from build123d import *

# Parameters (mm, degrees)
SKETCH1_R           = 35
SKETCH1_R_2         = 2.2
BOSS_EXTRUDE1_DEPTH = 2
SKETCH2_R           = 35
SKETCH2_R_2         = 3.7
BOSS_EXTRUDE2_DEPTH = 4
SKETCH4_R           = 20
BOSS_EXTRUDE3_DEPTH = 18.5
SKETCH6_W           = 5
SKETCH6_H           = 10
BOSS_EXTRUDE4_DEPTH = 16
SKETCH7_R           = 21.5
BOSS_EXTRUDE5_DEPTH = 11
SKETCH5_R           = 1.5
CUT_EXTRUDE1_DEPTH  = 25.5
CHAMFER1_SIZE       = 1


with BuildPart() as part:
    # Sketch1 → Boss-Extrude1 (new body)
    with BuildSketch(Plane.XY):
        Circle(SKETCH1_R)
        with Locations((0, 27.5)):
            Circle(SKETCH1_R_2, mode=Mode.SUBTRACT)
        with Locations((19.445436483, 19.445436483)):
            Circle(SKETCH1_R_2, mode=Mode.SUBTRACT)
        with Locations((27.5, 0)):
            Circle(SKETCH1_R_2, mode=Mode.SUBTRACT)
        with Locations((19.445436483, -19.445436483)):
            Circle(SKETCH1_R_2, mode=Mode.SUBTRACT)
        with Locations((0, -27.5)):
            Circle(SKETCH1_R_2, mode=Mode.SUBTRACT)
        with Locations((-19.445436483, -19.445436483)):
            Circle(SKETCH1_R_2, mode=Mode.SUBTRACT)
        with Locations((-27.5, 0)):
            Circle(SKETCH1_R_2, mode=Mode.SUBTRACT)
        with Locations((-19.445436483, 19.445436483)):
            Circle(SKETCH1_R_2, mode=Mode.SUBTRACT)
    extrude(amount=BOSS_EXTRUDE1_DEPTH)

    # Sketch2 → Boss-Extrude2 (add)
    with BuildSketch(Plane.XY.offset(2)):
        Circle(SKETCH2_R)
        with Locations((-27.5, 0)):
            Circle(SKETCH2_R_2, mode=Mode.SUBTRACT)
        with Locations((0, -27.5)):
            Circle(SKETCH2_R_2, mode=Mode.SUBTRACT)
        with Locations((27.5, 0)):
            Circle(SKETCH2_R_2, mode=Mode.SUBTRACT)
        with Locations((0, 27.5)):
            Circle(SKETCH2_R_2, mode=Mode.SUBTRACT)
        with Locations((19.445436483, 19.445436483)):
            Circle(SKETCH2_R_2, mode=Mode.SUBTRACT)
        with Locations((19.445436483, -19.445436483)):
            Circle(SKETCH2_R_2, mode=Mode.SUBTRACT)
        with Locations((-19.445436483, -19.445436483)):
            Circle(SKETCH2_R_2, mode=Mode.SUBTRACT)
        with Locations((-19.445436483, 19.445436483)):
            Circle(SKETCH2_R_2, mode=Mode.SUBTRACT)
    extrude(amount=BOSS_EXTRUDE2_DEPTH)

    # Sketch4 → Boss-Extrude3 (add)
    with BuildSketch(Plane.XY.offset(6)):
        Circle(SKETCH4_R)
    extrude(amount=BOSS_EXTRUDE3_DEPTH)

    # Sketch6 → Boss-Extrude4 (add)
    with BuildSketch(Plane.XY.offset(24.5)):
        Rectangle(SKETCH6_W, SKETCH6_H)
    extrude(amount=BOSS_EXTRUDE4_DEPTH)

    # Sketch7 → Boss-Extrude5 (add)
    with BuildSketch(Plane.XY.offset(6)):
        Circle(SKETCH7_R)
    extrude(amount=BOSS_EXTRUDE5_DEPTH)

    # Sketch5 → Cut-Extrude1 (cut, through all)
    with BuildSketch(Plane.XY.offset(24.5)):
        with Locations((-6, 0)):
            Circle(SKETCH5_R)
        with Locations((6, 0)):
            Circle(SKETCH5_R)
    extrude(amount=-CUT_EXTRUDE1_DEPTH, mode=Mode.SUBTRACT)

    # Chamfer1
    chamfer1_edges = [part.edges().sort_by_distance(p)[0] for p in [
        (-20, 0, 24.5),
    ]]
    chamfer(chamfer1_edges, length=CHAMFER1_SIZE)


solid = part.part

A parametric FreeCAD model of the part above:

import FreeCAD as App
import Part
import Sketcher

V = App.Vector


def edges_at(feature, points):
    """Names of the edges that pass closest to the given points."""
    edges = feature.Shape.Edges
    near = lambda p: min(range(len(edges)), key=lambda i: edges[i].distToShape(Part.Vertex(*p))[0])
    return sorted({f"Edge{near(p) + 1}" for p in points})

doc = App.newDocument("Part")
body = doc.addObject("PartDesign::Body", "Body")

# Sketch on XY plane
sketch1 = body.newObject("Sketcher::SketchObject", "Sketch")
sketch1.AttachmentSupport = (doc.getObject("XY_Plane"), [""])
sketch1.MapMode = "FlatFace"
sketch1.addGeometry(Part.Circle(V(0, 0, 0), V(0, 0, 1), 35), False)
sketch1.addGeometry(Part.Circle(V(-19.4, -19.4, 0), V(0, 0, 1), 2.2), False)
sketch1.addGeometry(Part.Circle(V(0, -27.5, 0), V(0, 0, 1), 2.2), False)
sketch1.addGeometry(Part.Circle(V(19.4, -19.4, 0), V(0, 0, 1), 2.2), False)
sketch1.addGeometry(Part.Circle(V(-27.5, 0, 0), V(0, 0, 1), 2.2), False)
sketch1.addGeometry(Part.Circle(V(-19.4, 19.4, 0), V(0, 0, 1), 2.2), False)
sketch1.addGeometry(Part.Circle(V(27.5, 0, 0), V(0, 0, 1), 2.2), False)
sketch1.addGeometry(Part.Circle(V(0, 27.5, 0), V(0, 0, 1), 2.2), False)
sketch1.addGeometry(Part.Circle(V(19.4, 19.4, 0), V(0, 0, 1), 2.2), False)
sketch1.addConstraint(Sketcher.Constraint("Coincident", 0, 3, -1, 1))
sketch1.addConstraint(Sketcher.Constraint("Equal", 1, 2))
sketch1.addConstraint(Sketcher.Constraint("Equal", 2, 3))
sketch1.addConstraint(Sketcher.Constraint("Equal", 3, 4))
sketch1.addConstraint(Sketcher.Constraint("Equal", 4, 5))
sketch1.addConstraint(Sketcher.Constraint("Equal", 5, 6))
sketch1.addConstraint(Sketcher.Constraint("Equal", 6, 7))
sketch1.addConstraint(Sketcher.Constraint("Equal", 7, 8))
sketch1.addConstraint(Sketcher.Constraint("Symmetric", 3, 3, 5, 3, -1, 1))
sketch1.addConstraint(Sketcher.Constraint("Symmetric", 4, 3, 6, 3, -1, 1))
sketch1.addConstraint(Sketcher.Constraint("Symmetric", 2, 3, 7, 3, -1, 1))
sketch1.addConstraint(Sketcher.Constraint("Symmetric", 1, 3, 8, 3, -1, 1))
sketch1.addConstraint(Sketcher.Constraint("Symmetric", 1, 3, 3, 3, -2))
sketch1.addConstraint(Sketcher.Constraint("PointOnObject", 2, 3, -2))
sketch1.addConstraint(Sketcher.Constraint("PointOnObject", 4, 3, -1))
sketch1.addConstraint(Sketcher.Constraint("Diameter", 0, 70.0))
sketch1.addConstraint(Sketcher.Constraint("Diameter", 1, 4.4))
sketch1.addConstraint(Sketcher.Constraint("DistanceY", 2, 3, -1, 1, 27.5))
sketch1.addConstraint(Sketcher.Constraint("DistanceX", 4, 3, -1, 1, 27.5))
sketch1.addConstraint(Sketcher.Constraint("DistanceX", 1, 3, -1, 1, 19.445436))
sketch1.addConstraint(Sketcher.Constraint("DistanceY", 1, 3, -1, 1, 19.445436))
pad1 = body.newObject("PartDesign::Pad", "Pad")
pad1.Profile = sketch1
pad1.Length = 2

# Sketch on XY plane
sketch2 = body.newObject("Sketcher::SketchObject", "Sketch001")
sketch2.AttachmentSupport = (doc.getObject("XY_Plane"), [""])
sketch2.MapMode = "FlatFace"
sketch2.AttachmentOffset = App.Placement(V(0, 0, 2), App.Rotation())
sketch2.addGeometry(Part.Circle(V(0, 0, 0), V(0, 0, 1), 35), False)
sketch2.addGeometry(Part.Circle(V(-19.4, -19.4, 0), V(0, 0, 1), 3.7), False)
sketch2.addGeometry(Part.Circle(V(0, -27.5, 0), V(0, 0, 1), 3.7), False)
sketch2.addGeometry(Part.Circle(V(19.4, -19.4, 0), V(0, 0, 1), 3.7), False)
sketch2.addGeometry(Part.Circle(V(-27.5, 0, 0), V(0, 0, 1), 3.7), False)
sketch2.addGeometry(Part.Circle(V(-19.4, 19.4, 0), V(0, 0, 1), 3.7), False)
sketch2.addGeometry(Part.Circle(V(27.5, 0, 0), V(0, 0, 1), 3.7), False)
sketch2.addGeometry(Part.Circle(V(0, 27.5, 0), V(0, 0, 1), 3.7), False)
sketch2.addGeometry(Part.Circle(V(19.4, 19.4, 0), V(0, 0, 1), 3.7), False)
sketch2.addConstraint(Sketcher.Constraint("Coincident", 0, 3, -1, 1))
sketch2.addConstraint(Sketcher.Constraint("Equal", 1, 2))
sketch2.addConstraint(Sketcher.Constraint("Equal", 2, 3))
sketch2.addConstraint(Sketcher.Constraint("Equal", 3, 4))
sketch2.addConstraint(Sketcher.Constraint("Equal", 4, 5))
sketch2.addConstraint(Sketcher.Constraint("Equal", 5, 6))
sketch2.addConstraint(Sketcher.Constraint("Equal", 6, 7))
sketch2.addConstraint(Sketcher.Constraint("Equal", 7, 8))
sketch2.addConstraint(Sketcher.Constraint("Symmetric", 3, 3, 5, 3, -1, 1))
sketch2.addConstraint(Sketcher.Constraint("Symmetric", 4, 3, 6, 3, -1, 1))
sketch2.addConstraint(Sketcher.Constraint("Symmetric", 2, 3, 7, 3, -1, 1))
sketch2.addConstraint(Sketcher.Constraint("Symmetric", 1, 3, 8, 3, -1, 1))
sketch2.addConstraint(Sketcher.Constraint("Symmetric", 1, 3, 3, 3, -2))
sketch2.addConstraint(Sketcher.Constraint("PointOnObject", 2, 3, -2))
sketch2.addConstraint(Sketcher.Constraint("PointOnObject", 4, 3, -1))
sketch2.addConstraint(Sketcher.Constraint("Diameter", 0, 70.0))
sketch2.addConstraint(Sketcher.Constraint("Diameter", 1, 7.4))
sketch2.addConstraint(Sketcher.Constraint("DistanceY", 2, 3, -1, 1, 27.5))
sketch2.addConstraint(Sketcher.Constraint("DistanceX", 4, 3, -1, 1, 27.5))
sketch2.addConstraint(Sketcher.Constraint("DistanceX", 1, 3, -1, 1, 19.445436))
sketch2.addConstraint(Sketcher.Constraint("DistanceY", 1, 3, -1, 1, 19.445436))
pad2 = body.newObject("PartDesign::Pad", "Pad001")
pad2.Profile = sketch2
pad2.Length = 4

# Sketch on XY plane
sketch3 = body.newObject("Sketcher::SketchObject", "Sketch002")
sketch3.AttachmentSupport = (doc.getObject("XY_Plane"), [""])
sketch3.MapMode = "FlatFace"
sketch3.AttachmentOffset = App.Placement(V(0, 0, 6), App.Rotation())
sketch3.addGeometry(Part.Circle(V(0, 0, 0), V(0, 0, 1), 20), False)
sketch3.addConstraint(Sketcher.Constraint("Coincident", 0, 3, -1, 1))
sketch3.addConstraint(Sketcher.Constraint("Diameter", 0, 40.0))
pad3 = body.newObject("PartDesign::Pad", "Pad002")
pad3.Profile = sketch3
pad3.Length = 18.5

# Sketch on XY plane
sketch4 = body.newObject("Sketcher::SketchObject", "Sketch003")
sketch4.AttachmentSupport = (doc.getObject("XY_Plane"), [""])
sketch4.MapMode = "FlatFace"
sketch4.AttachmentOffset = App.Placement(V(0, 0, 24.5), App.Rotation())
sketch4.addGeometry(Part.LineSegment(V(-2, 5, 0), V(-2, -5, 0)), False)
sketch4.addGeometry(Part.LineSegment(V(-2, -5, 0), V(2, -5, 0)), False)
sketch4.addGeometry(Part.LineSegment(V(2, -5, 0), V(2, 5, 0)), False)
sketch4.addGeometry(Part.LineSegment(V(2, 5, 0), V(-2, 5, 0)), False)
sketch4.addConstraint(Sketcher.Constraint("Coincident", 0, 2, 1, 1))
sketch4.addConstraint(Sketcher.Constraint("Coincident", 1, 2, 2, 1))
sketch4.addConstraint(Sketcher.Constraint("Coincident", 2, 2, 3, 1))
sketch4.addConstraint(Sketcher.Constraint("Coincident", 3, 2, 0, 1))
sketch4.addConstraint(Sketcher.Constraint("Vertical", 0))
sketch4.addConstraint(Sketcher.Constraint("Horizontal", 1))
sketch4.addConstraint(Sketcher.Constraint("Vertical", 2))
sketch4.addConstraint(Sketcher.Constraint("Horizontal", 3))
sketch4.addConstraint(Sketcher.Constraint("Symmetric", 0, 2, 2, 2, -1, 1))
sketch4.addConstraint(Sketcher.Constraint("DistanceX", 1, 1, 1, 2, 5.0))
sketch4.addConstraint(Sketcher.Constraint("DistanceY", 0, 2, 0, 1, 10.0))
pad4 = body.newObject("PartDesign::Pad", "Pad003")
pad4.Profile = sketch4
pad4.Length = 16

# Sketch on XY plane
sketch5 = body.newObject("Sketcher::SketchObject", "Sketch004")
sketch5.AttachmentSupport = (doc.getObject("XY_Plane"), [""])
sketch5.MapMode = "FlatFace"
sketch5.AttachmentOffset = App.Placement(V(0, 0, 6), App.Rotation())
sketch5.addGeometry(Part.Circle(V(0, 0, 0), V(0, 0, 1), 22), False)
sketch5.addConstraint(Sketcher.Constraint("Coincident", 0, 3, -1, 1))
sketch5.addConstraint(Sketcher.Constraint("Diameter", 0, 43.0))
pad5 = body.newObject("PartDesign::Pad", "Pad004")
pad5.Profile = sketch5
pad5.Length = 11

# Sketch on XY plane
sketch6 = body.newObject("Sketcher::SketchObject", "Sketch005")
sketch6.AttachmentSupport = (doc.getObject("XY_Plane"), [""])
sketch6.MapMode = "FlatFace"
sketch6.AttachmentOffset = App.Placement(V(0, 0, 24.5), App.Rotation())
sketch6.addGeometry(Part.Circle(V(-6, 0, 0), V(0, 0, 1), 1.5), False)
sketch6.addGeometry(Part.Circle(V(6, 0, 0), V(0, 0, 1), 1.5), False)
sketch6.addConstraint(Sketcher.Constraint("Equal", 0, 1))
sketch6.addConstraint(Sketcher.Constraint("Symmetric", 0, 3, 1, 3, -1, 1))
sketch6.addConstraint(Sketcher.Constraint("PointOnObject", 0, 3, -1))
sketch6.addConstraint(Sketcher.Constraint("Diameter", 0, 3.0))
sketch6.addConstraint(Sketcher.Constraint("DistanceX", 0, 3, -1, 1, 6.0))
pocket1 = body.newObject("PartDesign::Pocket", "Pocket")
pocket1.Profile = sketch6
pocket1.Type = "ThroughAll"
doc.recompute()

chamfer = body.newObject("PartDesign::Chamfer", "Chamfer")
chamfer.Base = (pocket1, edges_at(pocket1, [(-20, 0, 24.5)]))
chamfer.Size = 1

doc.recompute()
